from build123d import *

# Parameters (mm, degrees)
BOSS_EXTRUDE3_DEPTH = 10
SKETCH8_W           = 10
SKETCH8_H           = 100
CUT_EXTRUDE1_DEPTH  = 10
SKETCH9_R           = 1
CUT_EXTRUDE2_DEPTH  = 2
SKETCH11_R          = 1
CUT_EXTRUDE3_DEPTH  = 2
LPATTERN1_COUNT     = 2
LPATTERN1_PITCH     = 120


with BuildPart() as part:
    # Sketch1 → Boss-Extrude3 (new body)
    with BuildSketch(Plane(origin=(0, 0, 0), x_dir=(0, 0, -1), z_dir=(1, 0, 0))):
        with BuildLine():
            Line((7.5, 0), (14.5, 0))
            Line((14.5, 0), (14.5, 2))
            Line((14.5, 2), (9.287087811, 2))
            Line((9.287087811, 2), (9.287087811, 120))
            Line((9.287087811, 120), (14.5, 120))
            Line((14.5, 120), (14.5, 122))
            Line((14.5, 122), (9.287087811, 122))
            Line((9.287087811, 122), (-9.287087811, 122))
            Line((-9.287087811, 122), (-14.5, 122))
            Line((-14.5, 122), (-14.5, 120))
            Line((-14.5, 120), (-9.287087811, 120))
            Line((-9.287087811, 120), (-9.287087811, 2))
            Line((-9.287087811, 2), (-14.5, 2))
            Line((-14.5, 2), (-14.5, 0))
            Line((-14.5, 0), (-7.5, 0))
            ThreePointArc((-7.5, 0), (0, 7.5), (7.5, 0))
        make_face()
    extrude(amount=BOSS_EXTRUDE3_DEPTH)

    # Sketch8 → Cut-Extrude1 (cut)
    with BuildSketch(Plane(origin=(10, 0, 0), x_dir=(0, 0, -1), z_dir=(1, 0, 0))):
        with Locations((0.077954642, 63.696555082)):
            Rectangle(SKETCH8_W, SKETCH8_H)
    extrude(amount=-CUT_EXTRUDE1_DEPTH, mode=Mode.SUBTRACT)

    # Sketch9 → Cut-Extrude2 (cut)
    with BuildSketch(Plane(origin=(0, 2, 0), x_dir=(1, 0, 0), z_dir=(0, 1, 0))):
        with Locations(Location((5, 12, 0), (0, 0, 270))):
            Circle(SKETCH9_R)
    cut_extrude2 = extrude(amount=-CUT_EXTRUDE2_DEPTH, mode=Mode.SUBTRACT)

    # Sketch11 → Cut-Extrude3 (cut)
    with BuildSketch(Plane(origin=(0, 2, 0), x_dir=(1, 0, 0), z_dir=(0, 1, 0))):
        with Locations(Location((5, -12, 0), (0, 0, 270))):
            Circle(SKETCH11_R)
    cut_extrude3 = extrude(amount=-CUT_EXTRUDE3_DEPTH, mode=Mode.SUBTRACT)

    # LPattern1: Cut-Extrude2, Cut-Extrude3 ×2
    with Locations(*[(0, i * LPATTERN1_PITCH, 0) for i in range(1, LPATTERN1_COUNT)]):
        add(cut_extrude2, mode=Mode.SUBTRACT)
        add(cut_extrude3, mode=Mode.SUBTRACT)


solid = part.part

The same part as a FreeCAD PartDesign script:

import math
import FreeCAD as App
import Part
import Sketcher
Q = App.Units.Quantity

doc = App.newDocument("Part")
params = doc.addObject("Spreadsheet::Sheet", "Params")
for row, (alias, value) in enumerate([
    ("sketch1_radius", "7.5 mm"),
    ("sketch1_width", "2 mm"),
    ("sketch1_width2", "118 mm"),
    ("sketch1_height", "7 mm"),
    ("pad1_length", "10 mm"),
    ("sketch2_width", "100 mm"),
    ("sketch2_height", "10 mm"),
    ("pocket1_length", "10 mm"),
    ("sketch3_diameter", "2 mm"),
    ("pocket2_length", "2 mm"),
    ("sketch4_diameter", "2 mm"),
    ("pocket3_length", "2 mm"),
    ("linearpattern_pitch", "120 mm"),
], start=1):
    params.set(f"A{row}", alias)
    params.set(f"B{row}", "=" + value)
    params.setAlias(f"B{row}", alias)

body = doc.addObject("PartDesign::Body", "Body")

sketch1 = body.newObject("Sketcher::SketchObject", "Sketch")
sketch1.AttachmentSupport = (doc.getObject("YZ_Plane"), [""])
sketch1.MapMode = "FlatFace"
sketch1.addGeometry([
    Part.LineSegment(App.Vector(0, -7.5, 0), App.Vector(0, -14.5, 0)),
    Part.LineSegment(App.Vector(0, -14.5, 0), App.Vector(2, -14.5, 0)),
    Part.LineSegment(App.Vector(2, -14.5, 0), App.Vector(2, -9.3, 0)),
    Part.LineSegment(App.Vector(2, -9.3, 0), App.Vector(120, -9.3, 0)),
    Part.LineSegment(App.Vector(120, -9.3, 0), App.Vector(120, -14.5, 0)),
    Part.LineSegment(App.Vector(120, -14.5, 0), App.Vector(122, -14.5, 0)),
    Part.LineSegment(App.Vector(122, -14.5, 0), App.Vector(122, 14.5, 0)),
    Part.LineSegment(App.Vector(122, 14.5, 0), App.Vector(120, 14.5, 0)),
    Part.LineSegment(App.Vector(120, 14.5, 0), App.Vector(120, 9.3, 0)),
    Part.LineSegment(App.Vector(120, 9.3, 0), App.Vector(2, 9.3, 0)),
    Part.LineSegment(App.Vector(2, 9.3, 0), App.Vector(2, 14.5, 0)),
    Part.LineSegment(App.Vector(2, 14.5, 0), App.Vector(0, 14.5, 0)),
    Part.LineSegment(App.Vector(0, 14.5, 0), App.Vector(0, 7.5, 0)),
    Part.ArcOfCircle(Part.Circle(App.Vector(0, 0, 0), App.Vector(0, 0, 1), 7.5), math.radians(-90), math.radians(90)),
], False)
sketch1.addConstraint([
    Sketcher.Constraint("Coincident", 0, 2, 1, 1),
    Sketcher.Constraint("Coincident", 1, 2, 2, 1),
    Sketcher.Constraint("Coincident", 2, 2, 3, 1),
    Sketcher.Constraint("Coincident", 3, 2, 4, 1),
    Sketcher.Constraint("Coincident", 4, 2, 5, 1),
    Sketcher.Constraint("Coincident", 5, 2, 6, 1),
    Sketcher.Constraint("Coincident", 6, 2, 7, 1),
    Sketcher.Constraint("Coincident", 7, 2, 8, 1),
    Sketcher.Constraint("Coincident", 8, 2, 9, 1),
    Sketcher.Constraint("Coincident", 9, 2, 10, 1),
    Sketcher.Constraint("Coincident", 10, 2, 11, 1),
    Sketcher.Constraint("Coincident", 11, 2, 12, 1),
    Sketcher.Constraint("Coincident", 12, 2, 13, 2),
    Sketcher.Constraint("Coincident", 13, 1, 0, 1),
    Sketcher.Constraint("Vertical", 0),
    Sketcher.Constraint("Horizontal", 1),
    Sketcher.Constraint("Vertical", 2),
    Sketcher.Constraint("Horizontal", 3),
    Sketcher.Constraint("Vertical", 4),
    Sketcher.Constraint("Horizontal", 5),
    Sketcher.Constraint("Vertical", 6),
    Sketcher.Constraint("Horizontal", 7),
    Sketcher.Constraint("Vertical", 8),
    Sketcher.Constraint("Horizontal", 9),
    Sketcher.Constraint("Vertical", 10),
    Sketcher.Constraint("Horizontal", 11),
    Sketcher.Constraint("Vertical", 12),
    Sketcher.Constraint("Coincident", 13, 3, -1, 1),
    Sketcher.Constraint("Symmetric", 0, 2, 11, 2, -1, 1),
    Sketcher.Constraint("Symmetric", 4, 2, 7, 2, -1),
    Sketcher.Constraint("Symmetric", 2, 2, 9, 2, -1),
    Sketcher.Constraint("PointOnObject", 0, 2, -2),
    Sketcher.Constraint("Horizontal", 1, 2, 4, 2),
    Sketcher.Constraint("Equal", 1, 5),
    Sketcher.Constraint("Radius", 13, Q("7.5 mm")),
    Sketcher.Constraint("DistanceX", 1, 1, 1, 2, Q("2 mm")),
    Sketcher.Constraint("DistanceX", 3, 1, 3, 2, Q("118 mm")),
    Sketcher.Constraint("DistanceY", 0, 2, 0, 1, Q("7 mm")),
    Sketcher.Constraint("DistanceY", 2, 1, 2, 2, Q("5.212912 mm")),
])
sketch1.setExpression("Constraints[34]", "Params.sketch1_radius")
sketch1.setExpression("Constraints[35]", "Params.sketch1_width")
sketch1.setExpression("Constraints[36]", "Params.sketch1_width2")
sketch1.setExpression("Constraints[37]", "Params.sketch1_height")
pad1 = body.newObject("PartDesign::Pad", "Pad")
pad1.Profile = sketch1
pad1.setExpression("Length", "Params.pad1_length")

sketch2 = body.newObject("Sketcher::SketchObject", "Sketch001")
sketch2.AttachmentSupport = (doc.getObject("YZ_Plane"), [""])
sketch2.MapMode = "FlatFace"
sketch2.AttachmentOffset = App.Placement(App.Vector(0, 0, 10), App.Rotation())
sketch2.addGeometry([
    Part.LineSegment(App.Vector(114, 5, 0), App.Vector(14, 5, 0)),
    Part.LineSegment(App.Vector(14, 5, 0), App.Vector(14, -5, 0)),
    Part.LineSegment(App.Vector(14, -5, 0), App.Vector(114, -5, 0)),
    Part.LineSegment(App.Vector(114, -5, 0), App.Vector(114, 5, 0)),
], False)
sketch2.addConstraint([
    Sketcher.Constraint("Coincident", 0, 2, 1, 1),
    Sketcher.Constraint("Coincident", 1, 2, 2, 1),
    Sketcher.Constraint("Coincident", 2, 2, 3, 1),
    Sketcher.Constraint("Coincident", 3, 2, 0, 1),
    Sketcher.Constraint("Horizontal", 0),
    Sketcher.Constraint("Vertical", 1),
    Sketcher.Constraint("Horizontal", 2),
    Sketcher.Constraint("Vertical", 3),
    Sketcher.Constraint("DistanceX", 0, 2, 0, 1, Q("100 mm")),
    Sketcher.Constraint("DistanceY", 1, 2, 1, 1, Q("10 mm")),
    Sketcher.Constraint("DistanceX", -1, 1, 0, 2, Q("13.696555 mm")),
    Sketcher.Constraint("DistanceY", -1, 1, 0, 2, Q("4.922045 mm")),
])
sketch2.setExpression("Constraints[8]", "Params.sketch2_width")
sketch2.setExpression("Constraints[9]", "Params.sketch2_height")
pocket1 = body.newObject("PartDesign::Pocket", "Pocket")
pocket1.Profile = sketch2
pocket1.setExpression("Length", "Params.pocket1_length")

sketch3 = body.newObject("Sketcher::SketchObject", "Sketch002")
sketch3.AttachmentSupport = (doc.getObject("XZ_Plane"), [""])
sketch3.MapMode = "FlatFace"
sketch3.AttachmentOffset = App.Placement(App.Vector(0, 0, -2), App.Rotation())
sketch3.addGeometry(Part.Circle(App.Vector(5, -12, 0), App.Vector(0, 0, 1), 1), False)
sketch3.addConstraint([
    Sketcher.Constraint("Diameter", 0, Q("2 mm")),
    Sketcher.Constraint("DistanceX", -1, 1, 0, 3, Q("5 mm")),
    Sketcher.Constraint("DistanceY", 0, 3, -1, 1, Q("12 mm")),
])
sketch3.setExpression("Constraints[0]", "Params.sketch3_diameter")
pocket2 = body.newObject("PartDesign::Pocket", "Pocket001")
pocket2.Profile = sketch3
pocket2.setExpression("Length", "Params.pocket2_length")
pocket2.Reversed = True

sketch4 = body.newObject("Sketcher::SketchObject", "Sketch003")
sketch4.AttachmentSupport = (doc.getObject("XZ_Plane"), [""])
sketch4.MapMode = "FlatFace"
sketch4.AttachmentOffset = App.Placement(App.Vector(0, 0, -2), App.Rotation())
sketch4.addGeometry(Part.Circle(App.Vector(5, 12, 0), App.Vector(0, 0, 1), 1), False)
sketch4.addConstraint([
    Sketcher.Constraint("Diameter", 0, Q("2 mm")),
    Sketcher.Constraint("DistanceX", -1, 1, 0, 3, Q("5 mm")),
    Sketcher.Constraint("DistanceY", -1, 1, 0, 3, Q("12 mm")),
])
sketch4.setExpression("Constraints[0]", "Params.sketch4_diameter")
pocket3 = body.newObject("PartDesign::Pocket", "Pocket002")
pocket3.Profile = sketch4
pocket3.setExpression("Length", "Params.pocket3_length")
pocket3.Reversed = True
doc.recompute()

linearpattern = body.newObject("PartDesign::LinearPattern", "LinearPattern")
linearpattern.Originals = [pocket2, pocket3]
linearpattern.Direction = (doc.getObject("Y_Axis"), [""])
linearpattern.Mode = "offset"
linearpattern.setExpression("Offset", "Params.linearpattern_pitch")
linearpattern.Occurrences = 2
body.Tip = linearpattern

doc.recompute()
